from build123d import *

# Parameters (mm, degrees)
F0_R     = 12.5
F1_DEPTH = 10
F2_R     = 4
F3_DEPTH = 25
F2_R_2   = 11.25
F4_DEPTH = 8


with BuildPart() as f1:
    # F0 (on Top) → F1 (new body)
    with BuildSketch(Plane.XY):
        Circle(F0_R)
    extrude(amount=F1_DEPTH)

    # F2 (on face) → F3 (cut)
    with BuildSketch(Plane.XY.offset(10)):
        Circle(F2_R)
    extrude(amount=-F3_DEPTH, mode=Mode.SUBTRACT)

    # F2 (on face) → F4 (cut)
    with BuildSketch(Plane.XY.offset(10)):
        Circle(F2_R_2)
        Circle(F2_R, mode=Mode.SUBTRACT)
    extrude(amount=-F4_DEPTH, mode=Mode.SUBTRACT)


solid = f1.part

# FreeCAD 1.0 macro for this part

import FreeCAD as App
import Part
import Sketcher
Q = App.Units.Quantity

doc = App.newDocument("Part")
body = doc.addObject("PartDesign::Body", "Body")

sketch1 = doc.addObject("Sketcher::SketchObject", "Sketch")
body.addObject(sketch1)
sketch1.AttachmentSupport = (doc.XY_Plane, [""])
sketch1.MapMode = "FlatFace"
sketch1.addGeometry(Part.Circle(App.Vector(0, 0, 0), App.Vector(0, 0, 1), 12), False)
sketch1.addConstraint(Sketcher.Constraint("Coincident", 0, 3, -1, 1))
sketch1.addConstraint(Sketcher.Constraint("Diameter", 0, Q("25 mm")))
pad1 = doc.addObject("PartDesign::Pad", "Pad")
body.addObject(pad1)
pad1.Profile = sketch1
pad1.Length = 10

sketch2 = doc.addObject("Sketcher::SketchObject", "Sketch001")
body.addObject(sketch2)
sketch2.AttachmentSupport = (doc.XY_Plane, [""])
sketch2.MapMode = "FlatFace"
sketch2.AttachmentOffset = App.Placement(App.Vector(0, 0, 10), App.Rotation())
sketch2.addGeometry(Part.Circle(App.Vector(0, 0, 0), App.Vector(0, 0, 1), 4), False)
sketch2.addConstraint(Sketcher.Constraint("Coincident", 0, 3, -1, 1))
sketch2.addConstraint(Sketcher.Constraint("Diameter", 0, Q("8 mm")))
pocket1 = doc.addObject("PartDesign::Pocket", "Pocket")
body.addObject(pocket1)
pocket1.Profile = sketch2
pocket1.Length = 25

sketch3 = doc.addObject("Sketcher::SketchObject", "Sketch002")
body.addObject(sketch3)
sketch3.AttachmentSupport = (doc.XY_Plane, [""])
sketch3.MapMode = "FlatFace"
sketch3.AttachmentOffset = App.Placement(App.Vector(0, 0, 10), App.Rotation())
sketch3.addGeometry(Part.Circle(App.Vector(0, 0, 0), App.Vector(0, 0, 1), 11.2), False)
sketch3.addGeometry(Part.Circle(App.Vector(0, 0, 0), App.Vector(0, 0, 1), 4), False)
sketch3.addConstraint(Sketcher.Constraint("Coincident", 0, 3, -1, 1))
sketch3.addConstraint(Sketcher.Constraint("Coincident", 1, 3, -1, 1))
sketch3.addConstraint(Sketcher.Constraint("Diameter", 1, Q("8 mm")))
sketch3.addConstraint(Sketcher.Constraint("Diameter", 0, Q("22.5 mm")))
pocket2 = doc.addObject("PartDesign::Pocket", "Pocket001")
body.addObject(pocket2)
pocket2.Profile = sketch3
pocket2.Length = 8

doc.recompute()
